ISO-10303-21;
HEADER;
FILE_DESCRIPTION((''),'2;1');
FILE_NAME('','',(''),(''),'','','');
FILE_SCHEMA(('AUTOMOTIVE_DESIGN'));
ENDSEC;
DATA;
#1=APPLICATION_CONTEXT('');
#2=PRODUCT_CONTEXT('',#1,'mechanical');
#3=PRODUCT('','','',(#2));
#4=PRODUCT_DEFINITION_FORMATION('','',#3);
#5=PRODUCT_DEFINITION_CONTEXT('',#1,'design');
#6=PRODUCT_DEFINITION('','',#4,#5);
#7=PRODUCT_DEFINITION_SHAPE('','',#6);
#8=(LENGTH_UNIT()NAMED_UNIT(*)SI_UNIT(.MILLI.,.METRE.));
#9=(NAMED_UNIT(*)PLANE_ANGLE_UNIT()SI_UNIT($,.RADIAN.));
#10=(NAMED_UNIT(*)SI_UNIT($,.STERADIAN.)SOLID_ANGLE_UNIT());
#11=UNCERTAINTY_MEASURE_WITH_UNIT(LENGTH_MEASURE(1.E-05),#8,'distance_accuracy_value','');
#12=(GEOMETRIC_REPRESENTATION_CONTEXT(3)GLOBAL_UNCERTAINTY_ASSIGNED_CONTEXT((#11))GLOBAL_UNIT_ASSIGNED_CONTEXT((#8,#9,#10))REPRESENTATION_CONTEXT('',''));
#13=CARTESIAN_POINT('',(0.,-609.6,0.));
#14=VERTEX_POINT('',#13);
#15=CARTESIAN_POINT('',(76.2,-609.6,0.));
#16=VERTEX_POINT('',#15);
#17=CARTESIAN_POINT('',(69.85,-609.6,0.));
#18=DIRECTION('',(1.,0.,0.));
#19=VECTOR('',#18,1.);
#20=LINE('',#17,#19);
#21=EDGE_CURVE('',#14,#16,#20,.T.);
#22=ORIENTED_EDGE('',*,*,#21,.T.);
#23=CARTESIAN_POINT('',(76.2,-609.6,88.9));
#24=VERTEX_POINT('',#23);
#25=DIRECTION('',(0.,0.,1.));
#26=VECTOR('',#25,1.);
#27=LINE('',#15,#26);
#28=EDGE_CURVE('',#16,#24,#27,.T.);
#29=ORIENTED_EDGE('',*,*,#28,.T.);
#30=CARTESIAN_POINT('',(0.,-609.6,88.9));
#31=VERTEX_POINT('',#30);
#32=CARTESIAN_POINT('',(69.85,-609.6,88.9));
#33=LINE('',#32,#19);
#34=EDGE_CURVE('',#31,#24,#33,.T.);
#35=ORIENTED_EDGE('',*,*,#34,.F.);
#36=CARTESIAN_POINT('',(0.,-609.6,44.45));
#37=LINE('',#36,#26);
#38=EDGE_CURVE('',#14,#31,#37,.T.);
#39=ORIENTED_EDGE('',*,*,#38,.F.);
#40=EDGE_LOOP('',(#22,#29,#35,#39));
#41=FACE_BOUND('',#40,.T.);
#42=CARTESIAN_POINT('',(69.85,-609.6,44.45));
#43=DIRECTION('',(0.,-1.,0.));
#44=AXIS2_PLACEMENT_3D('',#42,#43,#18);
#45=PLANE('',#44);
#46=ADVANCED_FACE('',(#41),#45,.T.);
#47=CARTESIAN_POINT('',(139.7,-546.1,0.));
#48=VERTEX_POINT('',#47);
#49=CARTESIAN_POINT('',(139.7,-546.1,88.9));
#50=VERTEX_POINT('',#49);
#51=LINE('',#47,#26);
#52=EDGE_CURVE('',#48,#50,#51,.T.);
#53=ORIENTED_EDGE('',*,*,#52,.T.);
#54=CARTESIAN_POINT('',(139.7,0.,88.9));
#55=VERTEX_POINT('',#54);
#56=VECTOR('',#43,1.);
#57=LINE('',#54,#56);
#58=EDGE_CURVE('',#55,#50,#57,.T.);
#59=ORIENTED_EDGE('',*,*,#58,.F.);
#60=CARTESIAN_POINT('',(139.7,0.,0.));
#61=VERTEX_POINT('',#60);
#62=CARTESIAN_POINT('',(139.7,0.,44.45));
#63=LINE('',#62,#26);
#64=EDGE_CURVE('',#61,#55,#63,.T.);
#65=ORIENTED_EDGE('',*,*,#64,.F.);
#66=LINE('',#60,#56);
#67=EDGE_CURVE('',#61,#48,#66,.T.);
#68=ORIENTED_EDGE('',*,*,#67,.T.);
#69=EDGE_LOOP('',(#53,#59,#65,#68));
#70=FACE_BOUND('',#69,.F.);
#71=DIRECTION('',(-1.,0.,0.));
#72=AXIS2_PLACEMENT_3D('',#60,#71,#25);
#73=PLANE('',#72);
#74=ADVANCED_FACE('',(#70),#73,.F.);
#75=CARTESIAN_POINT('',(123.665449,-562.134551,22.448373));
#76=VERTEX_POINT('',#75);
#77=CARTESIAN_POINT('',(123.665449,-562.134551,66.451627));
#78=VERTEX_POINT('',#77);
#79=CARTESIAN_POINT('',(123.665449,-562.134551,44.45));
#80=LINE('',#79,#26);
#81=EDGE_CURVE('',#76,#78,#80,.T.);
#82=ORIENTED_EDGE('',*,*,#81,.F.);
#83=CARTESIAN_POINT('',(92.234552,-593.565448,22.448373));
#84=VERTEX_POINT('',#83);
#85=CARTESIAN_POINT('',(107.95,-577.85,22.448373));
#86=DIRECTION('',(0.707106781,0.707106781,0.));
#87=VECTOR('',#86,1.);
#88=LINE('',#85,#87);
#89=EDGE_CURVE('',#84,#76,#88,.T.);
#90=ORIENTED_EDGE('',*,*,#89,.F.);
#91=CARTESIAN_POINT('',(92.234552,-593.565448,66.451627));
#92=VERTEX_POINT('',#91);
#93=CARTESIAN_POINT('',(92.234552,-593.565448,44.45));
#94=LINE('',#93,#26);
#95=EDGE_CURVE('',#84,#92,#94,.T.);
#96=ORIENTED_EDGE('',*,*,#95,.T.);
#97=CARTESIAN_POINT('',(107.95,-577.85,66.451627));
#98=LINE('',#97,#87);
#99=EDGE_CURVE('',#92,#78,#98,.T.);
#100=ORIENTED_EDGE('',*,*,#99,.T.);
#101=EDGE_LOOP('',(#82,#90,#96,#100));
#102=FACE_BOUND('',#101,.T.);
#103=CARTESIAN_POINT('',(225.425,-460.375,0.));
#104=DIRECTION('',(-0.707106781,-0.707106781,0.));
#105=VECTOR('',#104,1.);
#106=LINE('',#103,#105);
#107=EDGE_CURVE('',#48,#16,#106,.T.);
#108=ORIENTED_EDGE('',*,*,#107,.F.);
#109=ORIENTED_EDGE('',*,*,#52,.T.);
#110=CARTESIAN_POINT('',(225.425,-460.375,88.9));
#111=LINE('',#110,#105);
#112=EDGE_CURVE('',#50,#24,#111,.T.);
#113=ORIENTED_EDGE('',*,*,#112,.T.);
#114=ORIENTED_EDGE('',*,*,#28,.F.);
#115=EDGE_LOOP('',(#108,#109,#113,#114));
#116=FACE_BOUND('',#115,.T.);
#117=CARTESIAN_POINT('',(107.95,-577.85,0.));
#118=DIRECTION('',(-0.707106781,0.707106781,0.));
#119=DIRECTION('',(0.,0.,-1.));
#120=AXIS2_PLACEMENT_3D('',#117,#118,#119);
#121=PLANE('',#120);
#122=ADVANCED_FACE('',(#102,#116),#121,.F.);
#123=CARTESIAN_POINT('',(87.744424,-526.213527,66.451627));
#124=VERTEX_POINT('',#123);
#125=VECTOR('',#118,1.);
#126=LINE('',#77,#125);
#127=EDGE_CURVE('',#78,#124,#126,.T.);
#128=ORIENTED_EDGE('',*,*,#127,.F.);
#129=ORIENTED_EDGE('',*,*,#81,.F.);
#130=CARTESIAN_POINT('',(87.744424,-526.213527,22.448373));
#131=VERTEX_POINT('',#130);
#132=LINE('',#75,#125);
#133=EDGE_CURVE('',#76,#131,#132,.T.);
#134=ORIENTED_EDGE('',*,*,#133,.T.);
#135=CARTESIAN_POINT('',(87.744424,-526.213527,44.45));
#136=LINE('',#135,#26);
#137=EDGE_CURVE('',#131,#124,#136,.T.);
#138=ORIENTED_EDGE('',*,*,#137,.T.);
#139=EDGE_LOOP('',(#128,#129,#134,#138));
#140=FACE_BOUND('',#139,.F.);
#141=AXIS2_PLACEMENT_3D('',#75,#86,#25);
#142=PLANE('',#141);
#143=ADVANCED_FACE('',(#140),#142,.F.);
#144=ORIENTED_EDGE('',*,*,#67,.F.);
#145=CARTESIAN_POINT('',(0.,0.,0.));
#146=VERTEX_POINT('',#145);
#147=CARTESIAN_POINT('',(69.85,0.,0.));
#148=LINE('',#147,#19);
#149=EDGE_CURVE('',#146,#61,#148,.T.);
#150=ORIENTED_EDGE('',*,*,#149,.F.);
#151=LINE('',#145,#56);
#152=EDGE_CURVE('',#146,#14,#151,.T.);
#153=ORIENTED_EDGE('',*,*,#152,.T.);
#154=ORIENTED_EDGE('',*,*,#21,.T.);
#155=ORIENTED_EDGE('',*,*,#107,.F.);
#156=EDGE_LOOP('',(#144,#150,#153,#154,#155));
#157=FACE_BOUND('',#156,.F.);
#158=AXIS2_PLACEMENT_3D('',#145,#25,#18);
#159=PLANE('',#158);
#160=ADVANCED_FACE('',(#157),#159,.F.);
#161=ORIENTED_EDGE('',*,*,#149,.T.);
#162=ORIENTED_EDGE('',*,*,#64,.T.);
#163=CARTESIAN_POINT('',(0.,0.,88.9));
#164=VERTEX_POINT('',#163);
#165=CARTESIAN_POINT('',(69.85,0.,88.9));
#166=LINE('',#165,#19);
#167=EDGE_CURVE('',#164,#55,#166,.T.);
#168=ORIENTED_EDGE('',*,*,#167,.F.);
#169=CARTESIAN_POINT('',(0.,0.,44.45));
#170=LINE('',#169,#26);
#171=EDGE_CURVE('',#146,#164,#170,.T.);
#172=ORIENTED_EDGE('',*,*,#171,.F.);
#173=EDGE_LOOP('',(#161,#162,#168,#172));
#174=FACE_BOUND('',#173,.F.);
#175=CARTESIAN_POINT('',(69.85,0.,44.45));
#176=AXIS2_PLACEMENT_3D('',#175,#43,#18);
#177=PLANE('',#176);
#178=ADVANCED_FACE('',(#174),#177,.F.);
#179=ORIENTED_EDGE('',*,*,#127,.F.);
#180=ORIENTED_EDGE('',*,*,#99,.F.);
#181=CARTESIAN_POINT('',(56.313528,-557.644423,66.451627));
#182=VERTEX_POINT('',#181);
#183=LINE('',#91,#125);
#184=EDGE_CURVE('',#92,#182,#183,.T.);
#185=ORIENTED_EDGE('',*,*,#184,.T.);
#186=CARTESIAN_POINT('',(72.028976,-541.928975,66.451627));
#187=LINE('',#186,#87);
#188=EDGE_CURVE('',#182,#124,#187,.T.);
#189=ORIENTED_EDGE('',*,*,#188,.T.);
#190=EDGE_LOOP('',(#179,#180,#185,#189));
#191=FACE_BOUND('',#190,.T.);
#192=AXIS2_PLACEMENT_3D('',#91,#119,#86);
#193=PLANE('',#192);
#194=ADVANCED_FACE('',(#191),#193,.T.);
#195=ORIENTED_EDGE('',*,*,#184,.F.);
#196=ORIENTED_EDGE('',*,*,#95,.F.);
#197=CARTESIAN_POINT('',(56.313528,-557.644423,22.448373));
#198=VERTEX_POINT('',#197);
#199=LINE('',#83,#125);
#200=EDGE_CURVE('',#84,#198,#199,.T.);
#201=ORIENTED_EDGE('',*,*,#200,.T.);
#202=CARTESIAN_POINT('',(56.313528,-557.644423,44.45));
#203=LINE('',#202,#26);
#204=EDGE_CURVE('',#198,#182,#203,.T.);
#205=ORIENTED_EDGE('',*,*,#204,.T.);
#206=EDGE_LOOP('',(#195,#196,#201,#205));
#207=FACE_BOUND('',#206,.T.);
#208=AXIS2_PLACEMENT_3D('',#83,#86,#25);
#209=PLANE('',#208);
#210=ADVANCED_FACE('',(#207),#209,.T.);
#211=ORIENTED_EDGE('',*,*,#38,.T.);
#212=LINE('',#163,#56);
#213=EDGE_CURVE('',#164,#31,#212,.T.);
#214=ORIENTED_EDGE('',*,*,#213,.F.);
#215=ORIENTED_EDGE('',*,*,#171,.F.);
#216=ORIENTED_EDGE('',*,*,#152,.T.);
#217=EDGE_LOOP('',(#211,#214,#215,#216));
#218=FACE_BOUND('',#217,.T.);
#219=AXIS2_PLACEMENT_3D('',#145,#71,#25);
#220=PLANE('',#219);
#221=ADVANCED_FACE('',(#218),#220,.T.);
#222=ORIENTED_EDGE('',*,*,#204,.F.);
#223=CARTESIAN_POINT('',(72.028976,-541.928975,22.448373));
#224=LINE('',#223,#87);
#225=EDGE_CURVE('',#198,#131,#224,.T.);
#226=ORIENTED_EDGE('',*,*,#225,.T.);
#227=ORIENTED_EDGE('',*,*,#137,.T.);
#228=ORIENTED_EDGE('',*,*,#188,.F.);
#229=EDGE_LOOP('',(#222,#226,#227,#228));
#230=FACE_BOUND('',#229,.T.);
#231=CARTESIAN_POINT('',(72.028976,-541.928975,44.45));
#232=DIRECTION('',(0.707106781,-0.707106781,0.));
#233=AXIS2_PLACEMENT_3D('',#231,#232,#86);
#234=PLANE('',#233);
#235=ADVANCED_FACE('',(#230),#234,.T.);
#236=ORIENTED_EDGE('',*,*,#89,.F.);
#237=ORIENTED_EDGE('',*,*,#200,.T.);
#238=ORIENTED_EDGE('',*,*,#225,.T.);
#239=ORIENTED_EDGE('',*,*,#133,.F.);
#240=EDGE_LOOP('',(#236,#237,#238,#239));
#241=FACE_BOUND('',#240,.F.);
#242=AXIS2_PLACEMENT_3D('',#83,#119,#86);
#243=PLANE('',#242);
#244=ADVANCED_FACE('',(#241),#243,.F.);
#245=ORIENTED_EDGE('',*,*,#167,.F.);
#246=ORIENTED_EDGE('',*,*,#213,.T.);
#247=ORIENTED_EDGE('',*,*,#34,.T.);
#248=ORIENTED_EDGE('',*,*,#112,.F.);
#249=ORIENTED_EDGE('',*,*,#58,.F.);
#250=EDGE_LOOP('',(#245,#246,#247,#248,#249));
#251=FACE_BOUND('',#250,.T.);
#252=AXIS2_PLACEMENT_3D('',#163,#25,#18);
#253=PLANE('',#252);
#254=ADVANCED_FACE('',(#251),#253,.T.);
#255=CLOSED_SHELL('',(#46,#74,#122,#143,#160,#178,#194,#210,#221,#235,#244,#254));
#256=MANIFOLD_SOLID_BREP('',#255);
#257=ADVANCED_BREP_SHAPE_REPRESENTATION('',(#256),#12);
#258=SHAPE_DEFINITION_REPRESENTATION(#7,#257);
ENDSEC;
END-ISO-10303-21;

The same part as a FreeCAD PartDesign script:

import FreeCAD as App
import Part
import Sketcher
Q = App.Units.Quantity


def edges_at(feature, points):
    """Names of the edges that pass closest to the given points."""
    edges = feature.Shape.Edges
    near = lambda p: min(range(len(edges)), key=lambda i: edges[i].distToShape(Part.Vertex(*p))[0])
    return sorted({f"Edge{near(p) + 1}" for p in points})


def add_polygon(sketch, points):
    """Adds a closed chain of lines whose ends are joined by coincident constraints."""
    first, n = sketch.GeometryCount, len(points)
    for a, b in zip(points, points[1:] + points[:1]):
        sketch.addGeometry(Part.LineSegment(App.Vector(*a, 0), App.Vector(*b, 0)), False)
    for i in range(n):
        sketch.addConstraint(Sketcher.Constraint("Coincident", first + i, 2, first + (i + 1) % n, 1))

doc = App.newDocument("Part")
body = doc.addObject("PartDesign::Body", "Body")

# Sketch on XZ plane
sketch1 = body.newObject("Sketcher::SketchObject", "Sketch")
sketch1.AttachmentSupport = (doc.getObject("XZ_Plane"), [""])
sketch1.MapMode = "FlatFace"
add_polygon(sketch1, [(0, 89), (0, 0), (140, 0), (140, 89)])  # lines 0-3
sketch1.addConstraint([
    Sketcher.Constraint("Vertical", 0),
    Sketcher.Constraint("Horizontal", 1),
    Sketcher.Constraint("Vertical", 2),
    Sketcher.Constraint("Horizontal", 3),
    Sketcher.Constraint("Coincident", 0, 2, -1, 1),
    Sketcher.Constraint("DistanceX", 1, 1, 1, 2, Q("5.5 in")),
    Sketcher.Constraint("DistanceY", 0, 2, 0, 1, Q("3.5 in")),
])
pad1 = body.newObject("PartDesign::Pad", "Pad")
pad1.Profile = sketch1
pad1.Length = Q("24 in")
doc.recompute()

chamfer = body.newObject("PartDesign::Chamfer", "Chamfer")
chamfer.Base = (pad1, edges_at(pad1, [(139.7, -609.6, 44.45)]))
chamfer.Size = Q("2.5 in")

# Sketch on an angled plane
sketch2 = body.newObject("Sketcher::SketchObject", "Sketch001")
sketch2.Placement = App.Placement(App.Vector(342.9, -342.9, 0), App.Rotation(App.Vector(0.707106781, 0.707106781, 0), App.Vector(0, 0, 0.999999999), App.Vector(0.707106781, -0.707106781, 0), "ZXY"))
add_polygon(sketch2, [(-354, 66), (-354, 22), (-310, 22), (-310, 66)])  # lines 0-3
sketch2.addConstraint([
    Sketcher.Constraint("Vertical", 0),
    Sketcher.Constraint("Horizontal", 1),
    Sketcher.Constraint("Vertical", 2),
    Sketcher.Constraint("Horizontal", 3),
    Sketcher.Constraint("DistanceX", 1, 1, 1, 2, Q("1.75 in")),
    Sketcher.Constraint("DistanceY", 0, 2, 0, 1, 44.003254),
    Sketcher.Constraint("DistanceX", 0, 2, -1, 1, 354.494476),
    Sketcher.Constraint("DistanceY", -1, 1, 0, 2, 22.448373),
])
pocket1 = body.newObject("PartDesign::Pocket", "Pocket")
pocket1.Profile = sketch2
pocket1.Length = Q("2 in")

doc.recompute()
